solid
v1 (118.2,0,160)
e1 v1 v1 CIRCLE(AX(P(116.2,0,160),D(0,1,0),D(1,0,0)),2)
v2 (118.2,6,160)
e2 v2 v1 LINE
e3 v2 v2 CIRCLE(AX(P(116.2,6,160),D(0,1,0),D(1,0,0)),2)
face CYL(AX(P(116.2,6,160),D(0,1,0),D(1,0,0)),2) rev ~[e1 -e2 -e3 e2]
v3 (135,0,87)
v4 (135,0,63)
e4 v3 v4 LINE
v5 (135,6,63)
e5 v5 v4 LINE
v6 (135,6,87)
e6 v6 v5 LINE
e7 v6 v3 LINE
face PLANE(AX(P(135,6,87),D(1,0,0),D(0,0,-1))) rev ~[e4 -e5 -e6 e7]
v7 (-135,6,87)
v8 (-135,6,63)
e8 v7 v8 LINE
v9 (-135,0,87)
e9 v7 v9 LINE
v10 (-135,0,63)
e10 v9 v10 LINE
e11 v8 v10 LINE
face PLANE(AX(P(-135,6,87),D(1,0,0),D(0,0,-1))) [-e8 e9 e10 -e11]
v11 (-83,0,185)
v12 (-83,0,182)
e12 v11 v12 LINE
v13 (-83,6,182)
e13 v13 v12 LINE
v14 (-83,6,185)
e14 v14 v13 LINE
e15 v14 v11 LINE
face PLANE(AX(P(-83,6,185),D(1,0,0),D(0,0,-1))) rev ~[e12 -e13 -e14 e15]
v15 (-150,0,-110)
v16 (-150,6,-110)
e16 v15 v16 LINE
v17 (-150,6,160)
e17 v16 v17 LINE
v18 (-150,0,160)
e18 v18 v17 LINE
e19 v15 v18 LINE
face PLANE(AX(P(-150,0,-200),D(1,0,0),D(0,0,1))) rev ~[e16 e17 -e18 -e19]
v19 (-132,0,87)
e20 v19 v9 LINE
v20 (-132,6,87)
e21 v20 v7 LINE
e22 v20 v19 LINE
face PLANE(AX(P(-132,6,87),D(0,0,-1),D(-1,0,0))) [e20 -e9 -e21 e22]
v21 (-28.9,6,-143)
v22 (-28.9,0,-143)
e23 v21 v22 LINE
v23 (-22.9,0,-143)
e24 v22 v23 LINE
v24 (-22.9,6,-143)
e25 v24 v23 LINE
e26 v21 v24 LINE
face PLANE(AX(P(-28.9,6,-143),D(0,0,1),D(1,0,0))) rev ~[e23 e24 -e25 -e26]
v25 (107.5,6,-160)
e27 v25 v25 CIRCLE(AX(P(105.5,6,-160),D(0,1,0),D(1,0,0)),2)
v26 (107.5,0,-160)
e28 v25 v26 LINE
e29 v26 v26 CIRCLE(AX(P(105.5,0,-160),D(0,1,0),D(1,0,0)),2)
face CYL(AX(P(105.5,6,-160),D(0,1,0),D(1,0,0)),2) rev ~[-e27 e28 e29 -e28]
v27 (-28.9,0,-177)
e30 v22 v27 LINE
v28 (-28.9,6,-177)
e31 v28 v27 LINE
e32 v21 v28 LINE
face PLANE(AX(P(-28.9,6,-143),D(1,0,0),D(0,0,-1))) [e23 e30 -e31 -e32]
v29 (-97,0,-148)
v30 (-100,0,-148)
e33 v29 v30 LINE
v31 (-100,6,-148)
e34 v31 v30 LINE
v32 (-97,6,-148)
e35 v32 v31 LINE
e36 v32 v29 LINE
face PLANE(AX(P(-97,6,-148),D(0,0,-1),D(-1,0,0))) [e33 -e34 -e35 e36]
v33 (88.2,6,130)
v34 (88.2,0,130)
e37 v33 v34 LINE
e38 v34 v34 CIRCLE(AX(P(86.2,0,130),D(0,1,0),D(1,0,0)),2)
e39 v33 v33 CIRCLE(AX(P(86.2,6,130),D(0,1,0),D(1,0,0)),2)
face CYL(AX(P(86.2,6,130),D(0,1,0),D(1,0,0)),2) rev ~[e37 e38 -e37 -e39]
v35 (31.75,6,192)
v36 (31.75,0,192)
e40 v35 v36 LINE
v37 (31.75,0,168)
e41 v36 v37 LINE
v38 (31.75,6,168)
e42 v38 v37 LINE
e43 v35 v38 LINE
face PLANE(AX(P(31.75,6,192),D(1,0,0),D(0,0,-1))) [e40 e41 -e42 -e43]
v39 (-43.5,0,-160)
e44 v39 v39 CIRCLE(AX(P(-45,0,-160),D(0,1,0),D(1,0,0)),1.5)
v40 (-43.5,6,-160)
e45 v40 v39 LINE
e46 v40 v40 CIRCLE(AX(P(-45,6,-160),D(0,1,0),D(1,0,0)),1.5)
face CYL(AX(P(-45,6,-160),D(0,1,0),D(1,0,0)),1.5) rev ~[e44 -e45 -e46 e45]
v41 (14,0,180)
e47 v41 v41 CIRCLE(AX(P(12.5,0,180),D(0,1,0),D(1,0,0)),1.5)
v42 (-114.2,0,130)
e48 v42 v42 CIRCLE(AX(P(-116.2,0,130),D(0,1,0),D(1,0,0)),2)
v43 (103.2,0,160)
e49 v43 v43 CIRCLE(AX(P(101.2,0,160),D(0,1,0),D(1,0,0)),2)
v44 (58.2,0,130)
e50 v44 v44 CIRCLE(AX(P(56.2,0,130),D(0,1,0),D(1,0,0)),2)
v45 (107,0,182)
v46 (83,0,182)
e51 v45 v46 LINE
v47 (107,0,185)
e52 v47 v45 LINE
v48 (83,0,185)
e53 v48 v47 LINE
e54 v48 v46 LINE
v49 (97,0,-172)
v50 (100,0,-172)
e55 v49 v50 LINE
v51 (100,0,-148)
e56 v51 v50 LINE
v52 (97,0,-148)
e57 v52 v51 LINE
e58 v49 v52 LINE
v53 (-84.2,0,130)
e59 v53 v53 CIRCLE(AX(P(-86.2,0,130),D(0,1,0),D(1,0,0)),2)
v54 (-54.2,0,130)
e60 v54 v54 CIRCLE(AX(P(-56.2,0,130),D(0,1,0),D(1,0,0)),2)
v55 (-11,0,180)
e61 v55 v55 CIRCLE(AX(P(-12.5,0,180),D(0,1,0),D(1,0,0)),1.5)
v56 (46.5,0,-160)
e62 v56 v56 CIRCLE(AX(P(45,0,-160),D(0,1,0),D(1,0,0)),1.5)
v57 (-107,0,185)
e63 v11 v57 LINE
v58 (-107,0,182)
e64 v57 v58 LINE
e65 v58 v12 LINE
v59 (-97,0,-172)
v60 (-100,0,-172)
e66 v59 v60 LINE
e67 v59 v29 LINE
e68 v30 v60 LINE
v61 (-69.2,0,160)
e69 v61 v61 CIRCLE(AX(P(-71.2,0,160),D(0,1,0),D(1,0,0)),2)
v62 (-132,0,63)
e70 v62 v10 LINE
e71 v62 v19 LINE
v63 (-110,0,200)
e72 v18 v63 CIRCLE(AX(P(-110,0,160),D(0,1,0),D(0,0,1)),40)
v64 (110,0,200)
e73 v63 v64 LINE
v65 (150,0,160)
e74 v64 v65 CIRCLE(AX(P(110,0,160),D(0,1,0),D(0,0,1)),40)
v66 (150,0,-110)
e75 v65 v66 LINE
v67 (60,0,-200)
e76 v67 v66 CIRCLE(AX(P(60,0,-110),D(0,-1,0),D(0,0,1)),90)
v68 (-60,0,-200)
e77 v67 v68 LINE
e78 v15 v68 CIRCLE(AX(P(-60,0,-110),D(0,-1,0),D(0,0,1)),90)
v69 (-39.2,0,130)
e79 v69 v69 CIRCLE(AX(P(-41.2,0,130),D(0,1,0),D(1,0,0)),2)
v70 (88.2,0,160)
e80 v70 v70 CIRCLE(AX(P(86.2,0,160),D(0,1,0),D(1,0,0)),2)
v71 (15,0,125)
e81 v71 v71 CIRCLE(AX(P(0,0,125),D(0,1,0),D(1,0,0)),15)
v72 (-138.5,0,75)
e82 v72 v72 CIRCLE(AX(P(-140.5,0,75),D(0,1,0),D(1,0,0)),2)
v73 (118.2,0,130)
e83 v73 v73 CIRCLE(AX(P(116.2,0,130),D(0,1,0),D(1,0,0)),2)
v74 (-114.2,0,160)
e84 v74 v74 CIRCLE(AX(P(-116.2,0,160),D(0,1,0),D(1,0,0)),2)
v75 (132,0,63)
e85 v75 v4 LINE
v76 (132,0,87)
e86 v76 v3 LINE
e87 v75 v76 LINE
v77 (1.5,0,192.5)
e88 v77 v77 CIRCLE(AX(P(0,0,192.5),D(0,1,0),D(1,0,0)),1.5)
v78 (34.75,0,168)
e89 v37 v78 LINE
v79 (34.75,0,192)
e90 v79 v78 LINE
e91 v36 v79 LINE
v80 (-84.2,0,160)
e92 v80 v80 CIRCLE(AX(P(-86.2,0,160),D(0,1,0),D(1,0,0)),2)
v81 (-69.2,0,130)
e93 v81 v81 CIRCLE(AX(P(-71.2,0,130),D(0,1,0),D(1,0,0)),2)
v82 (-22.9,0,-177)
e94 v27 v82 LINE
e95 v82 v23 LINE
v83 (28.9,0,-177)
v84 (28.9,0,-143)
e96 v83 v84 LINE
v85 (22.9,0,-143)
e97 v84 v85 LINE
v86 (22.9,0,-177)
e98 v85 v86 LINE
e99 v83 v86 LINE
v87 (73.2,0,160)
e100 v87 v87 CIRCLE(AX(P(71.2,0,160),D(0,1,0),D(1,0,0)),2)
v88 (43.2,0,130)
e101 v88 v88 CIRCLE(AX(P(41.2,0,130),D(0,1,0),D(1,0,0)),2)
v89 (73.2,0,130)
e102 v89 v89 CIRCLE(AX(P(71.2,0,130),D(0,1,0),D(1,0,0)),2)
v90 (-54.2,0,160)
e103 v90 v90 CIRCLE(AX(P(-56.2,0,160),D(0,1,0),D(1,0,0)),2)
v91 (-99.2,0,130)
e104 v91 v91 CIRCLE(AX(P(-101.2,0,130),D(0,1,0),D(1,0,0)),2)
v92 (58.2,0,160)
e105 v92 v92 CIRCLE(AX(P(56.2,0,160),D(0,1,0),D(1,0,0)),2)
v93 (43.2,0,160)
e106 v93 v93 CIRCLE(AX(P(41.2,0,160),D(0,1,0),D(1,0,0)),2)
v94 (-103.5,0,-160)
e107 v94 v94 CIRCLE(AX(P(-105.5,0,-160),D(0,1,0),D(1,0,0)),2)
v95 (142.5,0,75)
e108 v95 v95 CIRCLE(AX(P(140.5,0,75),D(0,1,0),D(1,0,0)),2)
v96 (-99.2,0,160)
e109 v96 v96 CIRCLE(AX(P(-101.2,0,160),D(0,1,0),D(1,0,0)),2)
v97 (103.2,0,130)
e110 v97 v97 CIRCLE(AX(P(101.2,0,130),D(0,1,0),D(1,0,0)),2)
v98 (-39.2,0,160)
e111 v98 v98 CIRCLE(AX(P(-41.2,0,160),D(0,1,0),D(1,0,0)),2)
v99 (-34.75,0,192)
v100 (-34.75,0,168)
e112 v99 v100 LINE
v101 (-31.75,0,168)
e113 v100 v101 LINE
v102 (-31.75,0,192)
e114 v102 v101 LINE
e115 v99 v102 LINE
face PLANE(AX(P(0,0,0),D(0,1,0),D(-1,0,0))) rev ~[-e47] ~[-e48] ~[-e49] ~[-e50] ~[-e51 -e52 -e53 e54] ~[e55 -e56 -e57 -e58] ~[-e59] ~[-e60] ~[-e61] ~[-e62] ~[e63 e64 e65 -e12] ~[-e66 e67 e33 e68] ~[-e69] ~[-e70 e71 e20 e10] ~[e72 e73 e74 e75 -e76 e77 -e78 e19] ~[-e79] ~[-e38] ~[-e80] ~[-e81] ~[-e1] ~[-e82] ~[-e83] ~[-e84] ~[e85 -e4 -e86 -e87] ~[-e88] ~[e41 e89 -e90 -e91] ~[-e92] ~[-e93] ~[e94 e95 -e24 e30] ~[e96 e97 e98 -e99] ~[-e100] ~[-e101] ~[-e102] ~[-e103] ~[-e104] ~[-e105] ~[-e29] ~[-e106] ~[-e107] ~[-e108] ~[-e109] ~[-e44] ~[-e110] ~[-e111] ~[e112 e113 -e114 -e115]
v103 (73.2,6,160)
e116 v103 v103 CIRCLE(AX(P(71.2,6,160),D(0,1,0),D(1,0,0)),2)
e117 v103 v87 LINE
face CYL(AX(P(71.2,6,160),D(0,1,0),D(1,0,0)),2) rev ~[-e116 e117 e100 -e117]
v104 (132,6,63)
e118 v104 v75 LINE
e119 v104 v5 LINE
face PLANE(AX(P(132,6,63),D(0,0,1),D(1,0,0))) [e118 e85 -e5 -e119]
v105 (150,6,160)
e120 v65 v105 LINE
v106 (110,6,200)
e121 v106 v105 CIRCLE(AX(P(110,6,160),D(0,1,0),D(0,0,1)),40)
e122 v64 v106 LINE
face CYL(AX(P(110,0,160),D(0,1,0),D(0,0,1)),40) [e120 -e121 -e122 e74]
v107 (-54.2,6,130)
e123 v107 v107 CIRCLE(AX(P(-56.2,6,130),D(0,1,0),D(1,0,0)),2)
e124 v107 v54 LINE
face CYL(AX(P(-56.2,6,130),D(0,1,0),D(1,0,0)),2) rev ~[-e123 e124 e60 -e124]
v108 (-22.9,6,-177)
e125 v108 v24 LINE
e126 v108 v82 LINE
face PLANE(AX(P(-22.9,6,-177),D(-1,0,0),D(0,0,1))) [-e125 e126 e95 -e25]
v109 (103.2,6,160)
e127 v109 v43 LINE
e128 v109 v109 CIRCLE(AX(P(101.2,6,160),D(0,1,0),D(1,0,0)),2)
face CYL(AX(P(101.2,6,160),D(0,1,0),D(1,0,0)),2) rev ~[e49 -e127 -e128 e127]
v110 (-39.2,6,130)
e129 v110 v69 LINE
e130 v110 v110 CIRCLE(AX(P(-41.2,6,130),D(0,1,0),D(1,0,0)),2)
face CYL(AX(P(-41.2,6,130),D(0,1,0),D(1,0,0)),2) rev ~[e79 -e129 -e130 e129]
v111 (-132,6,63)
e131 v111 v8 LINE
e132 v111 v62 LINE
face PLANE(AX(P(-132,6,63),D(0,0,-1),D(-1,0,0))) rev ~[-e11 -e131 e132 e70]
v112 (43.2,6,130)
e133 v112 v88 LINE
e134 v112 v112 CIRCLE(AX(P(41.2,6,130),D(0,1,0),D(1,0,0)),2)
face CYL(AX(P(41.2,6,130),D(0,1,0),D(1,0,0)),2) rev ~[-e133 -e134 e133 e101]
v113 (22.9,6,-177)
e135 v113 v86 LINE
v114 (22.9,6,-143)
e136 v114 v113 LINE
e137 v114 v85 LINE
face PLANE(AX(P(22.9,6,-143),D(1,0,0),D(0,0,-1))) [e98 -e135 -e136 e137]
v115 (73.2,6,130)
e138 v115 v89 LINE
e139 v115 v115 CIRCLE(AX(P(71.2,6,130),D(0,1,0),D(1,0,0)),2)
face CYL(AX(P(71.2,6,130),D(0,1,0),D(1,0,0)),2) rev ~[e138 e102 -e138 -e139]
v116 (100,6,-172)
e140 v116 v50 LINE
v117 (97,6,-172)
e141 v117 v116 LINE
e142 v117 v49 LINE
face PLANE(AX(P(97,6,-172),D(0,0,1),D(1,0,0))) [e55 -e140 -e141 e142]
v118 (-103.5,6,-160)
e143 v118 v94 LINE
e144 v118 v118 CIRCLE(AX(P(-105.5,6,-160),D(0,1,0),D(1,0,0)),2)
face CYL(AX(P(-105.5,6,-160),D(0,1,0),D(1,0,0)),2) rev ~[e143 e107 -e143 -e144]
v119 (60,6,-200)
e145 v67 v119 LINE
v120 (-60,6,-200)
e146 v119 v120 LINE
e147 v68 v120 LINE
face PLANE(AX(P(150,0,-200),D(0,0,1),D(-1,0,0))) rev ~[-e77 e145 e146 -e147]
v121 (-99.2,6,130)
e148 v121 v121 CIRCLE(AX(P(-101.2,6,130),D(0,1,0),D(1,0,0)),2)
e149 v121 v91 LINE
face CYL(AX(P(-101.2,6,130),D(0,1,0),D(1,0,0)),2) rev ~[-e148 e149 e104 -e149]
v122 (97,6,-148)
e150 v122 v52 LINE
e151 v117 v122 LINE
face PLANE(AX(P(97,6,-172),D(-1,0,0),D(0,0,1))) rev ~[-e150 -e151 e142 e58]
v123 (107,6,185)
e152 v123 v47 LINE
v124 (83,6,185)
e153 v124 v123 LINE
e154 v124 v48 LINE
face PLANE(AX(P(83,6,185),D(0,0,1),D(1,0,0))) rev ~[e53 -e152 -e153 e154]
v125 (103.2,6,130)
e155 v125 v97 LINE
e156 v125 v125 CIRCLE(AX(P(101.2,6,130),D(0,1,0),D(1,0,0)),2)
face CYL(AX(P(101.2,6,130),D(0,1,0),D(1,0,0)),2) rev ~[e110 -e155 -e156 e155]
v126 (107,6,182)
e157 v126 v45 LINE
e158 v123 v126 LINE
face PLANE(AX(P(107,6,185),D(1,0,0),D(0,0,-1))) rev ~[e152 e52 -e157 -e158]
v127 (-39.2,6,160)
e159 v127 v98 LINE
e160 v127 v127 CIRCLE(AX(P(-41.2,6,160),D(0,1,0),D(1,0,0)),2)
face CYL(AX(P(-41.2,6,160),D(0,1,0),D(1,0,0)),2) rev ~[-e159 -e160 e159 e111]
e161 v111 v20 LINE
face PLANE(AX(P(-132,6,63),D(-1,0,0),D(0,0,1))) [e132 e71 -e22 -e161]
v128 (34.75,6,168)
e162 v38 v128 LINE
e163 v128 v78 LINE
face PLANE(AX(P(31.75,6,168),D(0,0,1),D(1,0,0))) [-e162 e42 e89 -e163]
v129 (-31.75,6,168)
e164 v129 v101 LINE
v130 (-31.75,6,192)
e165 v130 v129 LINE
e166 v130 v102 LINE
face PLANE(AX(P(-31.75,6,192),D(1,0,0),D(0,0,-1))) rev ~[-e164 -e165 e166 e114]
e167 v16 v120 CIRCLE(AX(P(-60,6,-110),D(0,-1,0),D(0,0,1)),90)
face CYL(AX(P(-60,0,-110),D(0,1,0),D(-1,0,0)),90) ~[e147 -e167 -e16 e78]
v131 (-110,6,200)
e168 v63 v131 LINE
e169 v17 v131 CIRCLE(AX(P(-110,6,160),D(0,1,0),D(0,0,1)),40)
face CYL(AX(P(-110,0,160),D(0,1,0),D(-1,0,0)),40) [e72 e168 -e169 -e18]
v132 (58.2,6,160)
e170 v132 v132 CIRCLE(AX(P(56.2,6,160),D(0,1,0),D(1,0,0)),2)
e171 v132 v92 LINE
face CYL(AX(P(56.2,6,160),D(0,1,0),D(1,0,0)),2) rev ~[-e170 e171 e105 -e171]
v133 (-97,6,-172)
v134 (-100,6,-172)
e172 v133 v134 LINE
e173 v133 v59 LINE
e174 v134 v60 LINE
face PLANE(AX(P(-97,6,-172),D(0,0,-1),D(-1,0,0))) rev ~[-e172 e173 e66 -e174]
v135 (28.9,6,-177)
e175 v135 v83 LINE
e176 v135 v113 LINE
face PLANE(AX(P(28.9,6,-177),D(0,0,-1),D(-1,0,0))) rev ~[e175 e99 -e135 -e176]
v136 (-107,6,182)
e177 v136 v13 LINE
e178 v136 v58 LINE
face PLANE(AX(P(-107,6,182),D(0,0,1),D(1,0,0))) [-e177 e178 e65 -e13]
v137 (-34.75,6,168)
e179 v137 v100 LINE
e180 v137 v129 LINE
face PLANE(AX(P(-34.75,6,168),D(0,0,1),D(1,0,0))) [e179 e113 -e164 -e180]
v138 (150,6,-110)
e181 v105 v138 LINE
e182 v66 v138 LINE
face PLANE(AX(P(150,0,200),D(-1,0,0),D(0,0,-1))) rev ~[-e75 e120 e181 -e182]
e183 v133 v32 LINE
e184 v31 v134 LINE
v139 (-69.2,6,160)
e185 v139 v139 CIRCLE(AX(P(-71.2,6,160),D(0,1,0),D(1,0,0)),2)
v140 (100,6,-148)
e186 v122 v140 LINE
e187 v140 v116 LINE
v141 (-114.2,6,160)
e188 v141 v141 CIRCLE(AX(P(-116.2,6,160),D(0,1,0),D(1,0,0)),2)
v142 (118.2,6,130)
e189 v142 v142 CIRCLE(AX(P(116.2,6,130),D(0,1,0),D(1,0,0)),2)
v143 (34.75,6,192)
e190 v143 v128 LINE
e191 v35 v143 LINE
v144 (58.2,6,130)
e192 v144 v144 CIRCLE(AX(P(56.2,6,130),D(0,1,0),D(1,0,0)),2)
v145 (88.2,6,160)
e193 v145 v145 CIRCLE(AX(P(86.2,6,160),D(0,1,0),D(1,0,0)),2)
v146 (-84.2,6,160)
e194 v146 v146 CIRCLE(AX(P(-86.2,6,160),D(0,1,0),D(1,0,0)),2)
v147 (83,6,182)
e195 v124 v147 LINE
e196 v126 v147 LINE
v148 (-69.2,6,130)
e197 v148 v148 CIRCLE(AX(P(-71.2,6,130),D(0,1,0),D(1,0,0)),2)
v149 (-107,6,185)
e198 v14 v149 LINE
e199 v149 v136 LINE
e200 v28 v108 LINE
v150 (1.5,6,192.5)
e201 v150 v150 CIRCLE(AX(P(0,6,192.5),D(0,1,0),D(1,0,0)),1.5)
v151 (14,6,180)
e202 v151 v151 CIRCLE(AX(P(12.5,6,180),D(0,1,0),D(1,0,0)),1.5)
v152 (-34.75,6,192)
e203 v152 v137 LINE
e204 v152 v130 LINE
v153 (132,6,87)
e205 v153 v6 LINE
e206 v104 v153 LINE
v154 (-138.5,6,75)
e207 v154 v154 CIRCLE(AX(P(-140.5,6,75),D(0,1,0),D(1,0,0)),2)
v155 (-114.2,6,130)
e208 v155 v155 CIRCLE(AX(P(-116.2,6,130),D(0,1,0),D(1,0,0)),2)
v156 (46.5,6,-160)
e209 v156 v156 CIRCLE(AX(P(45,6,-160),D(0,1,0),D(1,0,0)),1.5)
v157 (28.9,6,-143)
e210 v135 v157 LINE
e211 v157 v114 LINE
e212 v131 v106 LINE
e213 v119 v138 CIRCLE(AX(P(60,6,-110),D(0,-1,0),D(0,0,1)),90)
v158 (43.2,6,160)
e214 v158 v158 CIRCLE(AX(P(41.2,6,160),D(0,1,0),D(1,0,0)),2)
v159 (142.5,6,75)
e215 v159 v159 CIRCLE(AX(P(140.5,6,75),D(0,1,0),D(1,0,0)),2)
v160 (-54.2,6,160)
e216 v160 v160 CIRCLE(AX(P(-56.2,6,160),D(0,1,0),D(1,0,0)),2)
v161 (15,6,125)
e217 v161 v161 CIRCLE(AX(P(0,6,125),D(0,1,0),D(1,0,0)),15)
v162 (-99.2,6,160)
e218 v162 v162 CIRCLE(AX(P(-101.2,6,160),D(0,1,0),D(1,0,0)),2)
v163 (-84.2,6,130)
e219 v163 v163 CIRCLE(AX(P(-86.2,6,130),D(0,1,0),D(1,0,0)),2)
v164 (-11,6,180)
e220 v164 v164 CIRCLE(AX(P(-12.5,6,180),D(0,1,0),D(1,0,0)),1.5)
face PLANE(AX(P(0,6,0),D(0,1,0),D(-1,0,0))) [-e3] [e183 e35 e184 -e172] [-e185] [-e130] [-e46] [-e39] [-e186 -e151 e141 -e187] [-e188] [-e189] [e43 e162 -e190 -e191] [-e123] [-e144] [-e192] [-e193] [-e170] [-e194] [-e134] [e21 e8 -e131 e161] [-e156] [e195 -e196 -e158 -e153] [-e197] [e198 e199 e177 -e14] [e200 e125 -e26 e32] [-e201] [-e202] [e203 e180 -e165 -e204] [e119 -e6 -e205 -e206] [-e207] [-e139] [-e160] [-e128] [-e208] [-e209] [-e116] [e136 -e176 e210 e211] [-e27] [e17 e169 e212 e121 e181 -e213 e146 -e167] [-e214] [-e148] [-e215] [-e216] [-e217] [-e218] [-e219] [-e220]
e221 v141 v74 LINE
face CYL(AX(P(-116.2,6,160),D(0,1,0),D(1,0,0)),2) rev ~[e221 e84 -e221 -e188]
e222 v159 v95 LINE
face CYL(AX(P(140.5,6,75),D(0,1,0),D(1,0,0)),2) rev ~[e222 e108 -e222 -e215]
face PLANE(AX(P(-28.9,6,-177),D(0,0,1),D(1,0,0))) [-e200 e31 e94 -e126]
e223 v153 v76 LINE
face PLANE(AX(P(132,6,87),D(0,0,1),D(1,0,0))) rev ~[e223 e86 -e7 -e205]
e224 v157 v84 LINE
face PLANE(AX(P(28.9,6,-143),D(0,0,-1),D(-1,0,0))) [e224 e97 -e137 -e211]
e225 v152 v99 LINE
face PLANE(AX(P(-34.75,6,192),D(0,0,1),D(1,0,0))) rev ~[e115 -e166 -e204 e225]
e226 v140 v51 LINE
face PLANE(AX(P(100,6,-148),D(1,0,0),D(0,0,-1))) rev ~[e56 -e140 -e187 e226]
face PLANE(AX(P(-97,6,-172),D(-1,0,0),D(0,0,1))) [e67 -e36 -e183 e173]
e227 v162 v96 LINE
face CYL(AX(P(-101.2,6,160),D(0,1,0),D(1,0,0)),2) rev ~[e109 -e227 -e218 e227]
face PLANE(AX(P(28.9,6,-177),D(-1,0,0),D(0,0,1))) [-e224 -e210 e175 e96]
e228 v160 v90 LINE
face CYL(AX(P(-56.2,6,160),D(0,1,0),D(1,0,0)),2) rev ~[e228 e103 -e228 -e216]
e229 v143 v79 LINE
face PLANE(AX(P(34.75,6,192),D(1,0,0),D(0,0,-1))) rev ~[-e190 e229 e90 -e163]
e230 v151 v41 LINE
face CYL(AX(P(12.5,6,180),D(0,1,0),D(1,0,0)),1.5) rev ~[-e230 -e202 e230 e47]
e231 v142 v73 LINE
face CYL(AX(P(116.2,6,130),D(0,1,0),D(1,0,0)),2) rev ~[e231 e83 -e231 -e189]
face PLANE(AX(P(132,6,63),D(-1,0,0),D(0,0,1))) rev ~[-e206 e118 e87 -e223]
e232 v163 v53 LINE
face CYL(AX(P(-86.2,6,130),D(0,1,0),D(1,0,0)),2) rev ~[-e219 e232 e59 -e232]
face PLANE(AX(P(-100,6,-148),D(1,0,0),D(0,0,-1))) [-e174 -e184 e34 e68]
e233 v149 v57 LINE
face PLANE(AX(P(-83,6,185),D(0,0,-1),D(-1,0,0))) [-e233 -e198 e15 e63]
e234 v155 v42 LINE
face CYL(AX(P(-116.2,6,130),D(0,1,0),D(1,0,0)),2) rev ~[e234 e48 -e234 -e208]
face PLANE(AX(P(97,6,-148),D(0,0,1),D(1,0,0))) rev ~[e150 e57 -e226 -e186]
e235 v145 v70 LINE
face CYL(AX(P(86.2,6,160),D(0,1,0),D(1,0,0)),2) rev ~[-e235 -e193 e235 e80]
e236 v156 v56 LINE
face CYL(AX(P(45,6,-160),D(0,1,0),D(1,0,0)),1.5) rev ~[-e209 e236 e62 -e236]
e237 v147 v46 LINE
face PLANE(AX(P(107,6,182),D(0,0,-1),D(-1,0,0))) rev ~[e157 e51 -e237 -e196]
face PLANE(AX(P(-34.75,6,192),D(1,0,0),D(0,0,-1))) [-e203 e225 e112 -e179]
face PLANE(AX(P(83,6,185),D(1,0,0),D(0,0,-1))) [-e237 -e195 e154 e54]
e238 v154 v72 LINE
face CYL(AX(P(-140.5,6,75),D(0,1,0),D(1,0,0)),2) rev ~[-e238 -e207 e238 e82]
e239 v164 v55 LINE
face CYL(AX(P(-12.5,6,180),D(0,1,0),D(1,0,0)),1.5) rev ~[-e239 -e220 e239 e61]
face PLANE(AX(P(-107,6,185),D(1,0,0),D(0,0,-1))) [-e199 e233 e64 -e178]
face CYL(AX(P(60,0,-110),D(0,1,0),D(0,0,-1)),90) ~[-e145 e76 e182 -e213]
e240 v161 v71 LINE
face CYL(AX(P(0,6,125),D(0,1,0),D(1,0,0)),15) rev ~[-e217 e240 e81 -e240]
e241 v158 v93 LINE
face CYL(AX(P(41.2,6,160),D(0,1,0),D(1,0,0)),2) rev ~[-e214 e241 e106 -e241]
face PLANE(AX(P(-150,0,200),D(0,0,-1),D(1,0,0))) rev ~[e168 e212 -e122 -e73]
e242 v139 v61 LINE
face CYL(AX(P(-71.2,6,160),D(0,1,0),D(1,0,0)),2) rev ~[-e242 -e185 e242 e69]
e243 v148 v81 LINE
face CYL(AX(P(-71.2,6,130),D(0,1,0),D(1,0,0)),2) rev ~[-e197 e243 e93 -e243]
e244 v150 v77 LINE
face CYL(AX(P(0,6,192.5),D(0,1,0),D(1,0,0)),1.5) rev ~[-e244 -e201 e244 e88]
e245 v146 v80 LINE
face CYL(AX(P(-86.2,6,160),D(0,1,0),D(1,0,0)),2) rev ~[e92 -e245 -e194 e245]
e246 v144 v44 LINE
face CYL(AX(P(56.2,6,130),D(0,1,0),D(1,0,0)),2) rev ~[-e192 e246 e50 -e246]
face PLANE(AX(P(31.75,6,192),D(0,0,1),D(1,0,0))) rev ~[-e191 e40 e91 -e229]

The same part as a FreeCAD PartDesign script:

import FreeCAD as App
import Part
import Sketcher

V = App.Vector
Q = App.Units.Quantity


def edges_at(feature, points):
    """Names of the edges that pass closest to the given points."""
    edges = feature.Shape.Edges
    near = lambda p: min(range(len(edges)), key=lambda i: edges[i].distToShape(Part.Vertex(*p))[0])
    return sorted({f"Edge{near(p) + 1}" for p in points})

doc = App.newDocument("Part")
body = doc.addObject("PartDesign::Body", "Body")

# Sketch on XZ plane
sketch1 = body.newObject("Sketcher::SketchObject", "Sketch")
sketch1.AttachmentSupport = (doc.getObject("XZ_Plane"), [""])
sketch1.MapMode = "FlatFace"
sketch1.addGeometry([
    Part.LineSegment(V(-150, -200, 0), V(-150, 200, 0)),
    Part.LineSegment(V(-150, 200, 0), V(150, 200, 0)),
    Part.LineSegment(V(150, 200, 0), V(150, -200, 0)),
    Part.LineSegment(V(150, -200, 0), V(-150, -200, 0)),
], False)
sketch1.addConstraint([
    Sketcher.Constraint("Coincident", 0, 2, 1, 1),
    Sketcher.Constraint("Coincident", 1, 2, 2, 1),
    Sketcher.Constraint("Coincident", 2, 2, 3, 1),
    Sketcher.Constraint("Coincident", 3, 2, 0, 1),
    Sketcher.Constraint("Vertical", 0),
    Sketcher.Constraint("Horizontal", 1),
    Sketcher.Constraint("Vertical", 2),
    Sketcher.Constraint("Horizontal", 3),
    Sketcher.Constraint("Symmetric", 0, 2, 2, 2, -1, 1),
    Sketcher.Constraint("DistanceX", 1, 1, 1, 2, Q("300 mm")),
    Sketcher.Constraint("DistanceY", 0, 1, 0, 2, Q("400 mm")),
])
pad1 = body.newObject("PartDesign::Pad", "Pad")
pad1.Profile = sketch1
pad1.Length = 6
pad1.Reversed = True

# Sketch on XZ plane
sketch2 = body.newObject("Sketcher::SketchObject", "Sketch001")
sketch2.AttachmentSupport = (doc.getObject("XZ_Plane"), [""])
sketch2.MapMode = "FlatFace"
sketch2.AttachmentOffset = App.Placement(V(0, 0, -6), App.Rotation())
sketch2.addGeometry([
    Part.Circle(V(-116.2, 160, 0), V(0, 0, 1), 2),  # 0
    Part.Circle(V(-116.2, 130, 0), V(0, 0, 1), 2),  # 1
    Part.Circle(V(-86.2, 130, 0), V(0, 0, 1), 2),  # 2
    Part.Circle(V(-101.2, 130, 0), V(0, 0, 1), 2),  # 3
    Part.Circle(V(-101.2, 160, 0), V(0, 0, 1), 2),  # 4
    Part.Circle(V(-86.2, 160, 0), V(0, 0, 1), 2),  # 5
    Part.Circle(V(86.2, 160, 0), V(0, 0, 1), 2),  # 6
    Part.Circle(V(116.2, 160, 0), V(0, 0, 1), 2),  # 7
    Part.Circle(V(101.2, 160, 0), V(0, 0, 1), 2),  # 8
    Part.Circle(V(101.2, 130, 0), V(0, 0, 1), 2),  # 9
    Part.Circle(V(86.2, 130, 0), V(0, 0, 1), 2),  # 10
    Part.Circle(V(116.2, 130, 0), V(0, 0, 1), 2),  # 11
    Part.Circle(V(-71.2, 160, 0), V(0, 0, 1), 2),  # 12
    Part.Circle(V(-71.2, 130, 0), V(0, 0, 1), 2),  # 13
    Part.Circle(V(-56.2, 160, 0), V(0, 0, 1), 2),  # 14
    Part.Circle(V(-56.2, 130, 0), V(0, 0, 1), 2),  # 15
    Part.Circle(V(-41.2, 160, 0), V(0, 0, 1), 2),  # 16
    Part.Circle(V(-41.2, 130, 0), V(0, 0, 1), 2),  # 17
    Part.Circle(V(71.2, 130, 0), V(0, 0, 1), 2),  # 18
    Part.Circle(V(71.2, 160, 0), V(0, 0, 1), 2),  # 19
    Part.Circle(V(56.2, 130, 0), V(0, 0, 1), 2),  # 20
    Part.Circle(V(56.2, 160, 0), V(0, 0, 1), 2),  # 21
    Part.Circle(V(41.2, 130, 0), V(0, 0, 1), 2),  # 22
    Part.Circle(V(41.2, 160, 0), V(0, 0, 1), 2),  # 23
], False)
sketch2.addConstraint([
    Sketcher.Constraint("Equal", 0, 1),
    Sketcher.Constraint("Equal", 1, 2),
    Sketcher.Constraint("Equal", 2, 3),
    Sketcher.Constraint("Equal", 3, 4),
    Sketcher.Constraint("Equal", 4, 5),
    Sketcher.Constraint("Equal", 5, 6),
    Sketcher.Constraint("Equal", 6, 7),
    Sketcher.Constraint("Equal", 7, 8),
    Sketcher.Constraint("Equal", 8, 9),
    Sketcher.Constraint("Equal", 9, 10),
    Sketcher.Constraint("Equal", 10, 11),
    Sketcher.Constraint("Equal", 11, 12),
    Sketcher.Constraint("Equal", 12, 13),
    Sketcher.Constraint("Equal", 13, 14),
    Sketcher.Constraint("Equal", 14, 15),
    Sketcher.Constraint("Equal", 15, 16),
    Sketcher.Constraint("Equal", 16, 17),
    Sketcher.Constraint("Equal", 17, 18),
    Sketcher.Constraint("Equal", 18, 19),
    Sketcher.Constraint("Equal", 19, 20),
    Sketcher.Constraint("Equal", 20, 21),
    Sketcher.Constraint("Equal", 21, 22),
    Sketcher.Constraint("Equal", 22, 23),
    Sketcher.Constraint("Symmetric", 5, 3, 6, 3, -2),
    Sketcher.Constraint("Symmetric", 0, 3, 7, 3, -2),
    Sketcher.Constraint("Symmetric", 4, 3, 8, 3, -2),
    Sketcher.Constraint("Symmetric", 3, 3, 9, 3, -2),
    Sketcher.Constraint("Symmetric", 2, 3, 10, 3, -2),
    Sketcher.Constraint("Symmetric", 1, 3, 11, 3, -2),
    Sketcher.Constraint("Symmetric", 13, 3, 18, 3, -2),
    Sketcher.Constraint("Symmetric", 12, 3, 19, 3, -2),
    Sketcher.Constraint("Symmetric", 15, 3, 20, 3, -2),
    Sketcher.Constraint("Symmetric", 14, 3, 21, 3, -2),
    Sketcher.Constraint("Symmetric", 17, 3, 22, 3, -2),
    Sketcher.Constraint("Symmetric", 16, 3, 23, 3, -2),
    Sketcher.Constraint("Horizontal", 1, 3, 2, 3),
    Sketcher.Constraint("Horizontal", 2, 3, 3, 3),
    Sketcher.Constraint("Horizontal", 0, 3, 4, 3),
    Sketcher.Constraint("Horizontal", 4, 3, 5, 3),
    Sketcher.Constraint("Horizontal", 8, 3, 12, 3),
    Sketcher.Constraint("Horizontal", 11, 3, 13, 3),
    Sketcher.Constraint("Horizontal", 12, 3, 14, 3),
    Sketcher.Constraint("Horizontal", 13, 3, 15, 3),
    Sketcher.Constraint("Horizontal", 14, 3, 16, 3),
    Sketcher.Constraint("Horizontal", 15, 3, 17, 3),
    Sketcher.Constraint("Vertical", 0, 3, 1, 3),
    Sketcher.Constraint("Vertical", 3, 3, 4, 3),
    Sketcher.Constraint("Vertical", 2, 3, 5, 3),
    Sketcher.Constraint("Vertical", 12, 3, 13, 3),
    Sketcher.Constraint("Vertical", 14, 3, 15, 3),
    Sketcher.Constraint("Vertical", 16, 3, 17, 3),
    Sketcher.Constraint("Diameter", 0, Q("4 mm")),
    Sketcher.Constraint("DistanceX", 1, 3, 3, 3, Q("15 mm")),
    Sketcher.Constraint("DistanceX", 3, 3, 2, 3, Q("15 mm")),
    Sketcher.Constraint("DistanceX", 5, 3, 12, 3, Q("15 mm")),
    Sketcher.Constraint("DistanceX", 12, 3, 14, 3, Q("15 mm")),
    Sketcher.Constraint("DistanceX", 14, 3, 16, 3, Q("15 mm")),
    Sketcher.Constraint("DistanceY", -1, 1, 0, 3, Q("160 mm")),
    Sketcher.Constraint("DistanceY", -1, 1, 1, 3, Q("130 mm")),
    Sketcher.Constraint("DistanceX", 0, 3, -1, 1, Q("116.2 mm")),
])
pocket1 = body.newObject("PartDesign::Pocket", "Pocket")
pocket1.Profile = sketch2
pocket1.Length = 10
pocket1.Reversed = True

# Sketch on XZ plane
sketch3 = body.newObject("Sketcher::SketchObject", "Sketch002")
sketch3.AttachmentSupport = (doc.getObject("XZ_Plane"), [""])
sketch3.MapMode = "FlatFace"
sketch3.AttachmentOffset = App.Placement(V(0, 0, -6), App.Rotation())
sketch3.addGeometry(Part.Circle(V(0, 125, 0), V(0, 0, 1), 15), False)
sketch3.addConstraint([
    Sketcher.Constraint("PointOnObject", 0, 3, -2),
    Sketcher.Constraint("Diameter", 0, Q("30 mm")),
    Sketcher.Constraint("DistanceY", -1, 1, 0, 3, Q("125 mm")),
])
pocket2 = body.newObject("PartDesign::Pocket", "Pocket001")
pocket2.Profile = sketch3
pocket2.Length = 10
pocket2.Reversed = True

# Sketch on XZ plane
sketch4 = body.newObject("Sketcher::SketchObject", "Sketch003")
sketch4.AttachmentSupport = (doc.getObject("XZ_Plane"), [""])
sketch4.MapMode = "FlatFace"
sketch4.AttachmentOffset = App.Placement(V(0, 0, -6), App.Rotation())
sketch4.addGeometry([
    Part.LineSegment(V(29, -143, 0), V(29, -177, 0)),  # 0
    Part.LineSegment(V(29, -177, 0), V(23, -177, 0)),  # 1
    Part.LineSegment(V(23, -177, 0), V(23, -143, 0)),  # 2
    Part.LineSegment(V(23, -143, 0), V(29, -143, 0)),  # 3
    Part.LineSegment(V(-23, -143, 0), V(-23, -177, 0)),  # 4
    Part.LineSegment(V(-23, -177, 0), V(-29, -177, 0)),  # 5
    Part.LineSegment(V(-29, -177, 0), V(-29, -143, 0)),  # 6
    Part.LineSegment(V(-29, -143, 0), V(-23, -143, 0)),  # 7
], False)
sketch4.addConstraint([
    Sketcher.Constraint("Coincident", 0, 2, 1, 1),
    Sketcher.Constraint("Coincident", 1, 2, 2, 1),
    Sketcher.Constraint("Coincident", 2, 2, 3, 1),
    Sketcher.Constraint("Coincident", 3, 2, 0, 1),
    Sketcher.Constraint("Coincident", 4, 2, 5, 1),
    Sketcher.Constraint("Coincident", 5, 2, 6, 1),
    Sketcher.Constraint("Coincident", 6, 2, 7, 1),
    Sketcher.Constraint("Coincident", 7, 2, 4, 1),
    Sketcher.Constraint("Vertical", 0),
    Sketcher.Constraint("Horizontal", 1),
    Sketcher.Constraint("Vertical", 2),
    Sketcher.Constraint("Horizontal", 3),
    Sketcher.Constraint("Vertical", 4),
    Sketcher.Constraint("Horizontal", 5),
    Sketcher.Constraint("Vertical", 6),
    Sketcher.Constraint("Horizontal", 7),
    Sketcher.Constraint("Symmetric", 1, 2, 4, 2, -2),
    Sketcher.Constraint("Symmetric", 3, 2, 6, 2, -2),
    Sketcher.Constraint("DistanceX", 1, 2, 1, 1, Q("6 mm")),
    Sketcher.Constraint("DistanceY", 0, 2, 0, 1, Q("34 mm")),
    Sketcher.Constraint("DistanceY", 0, 2, -1, 1, Q("177 mm")),
    Sketcher.Constraint("DistanceX", -1, 1, 0, 2, Q("28.9 mm")),
])
pocket3 = body.newObject("PartDesign::Pocket", "Pocket002")
pocket3.Profile = sketch4
pocket3.Length = 10
pocket3.Reversed = True

# Sketch on XZ plane
sketch5 = body.newObject("Sketcher::SketchObject", "Sketch004")
sketch5.AttachmentSupport = (doc.getObject("XZ_Plane"), [""])
sketch5.MapMode = "FlatFace"
sketch5.AttachmentOffset = App.Placement(V(0, 0, -6), App.Rotation())
sketch5.addGeometry([
    Part.Circle(V(45, -160, 0), V(0, 0, 1), 1.5),
    Part.Circle(V(-45, -160, 0), V(0, 0, 1), 1.5),
], False)
sketch5.addConstraint([
    Sketcher.Constraint("Equal", 0, 1),
    Sketcher.Constraint("Symmetric", 0, 3, 1, 3, -2),
    Sketcher.Constraint("Diameter", 0, Q("3 mm")),
    Sketcher.Constraint("DistanceX", -1, 1, 0, 3, Q("45 mm")),
    Sketcher.Constraint("DistanceY", 0, 3, -1, 1, Q("160 mm")),
])
pocket4 = body.newObject("PartDesign::Pocket", "Pocket003")
pocket4.Profile = sketch5
pocket4.Length = 10
pocket4.Reversed = True
doc.recompute()

fillet = body.newObject("PartDesign::Fillet", "Fillet")
fillet.Base = (pocket4, edges_at(pocket4, [(-150, 3, 200), (150, 3, 200)]))
fillet.Radius = 40
doc.recompute()

fillet2 = body.newObject("PartDesign::Fillet", "Fillet001")
fillet2.Base = (fillet, edges_at(fillet, [(150, 3, -200), (-150, 3, -200)]))
fillet2.Radius = 90

# Sketch on XZ plane
sketch6 = body.newObject("Sketcher::SketchObject", "Sketch005")
sketch6.AttachmentSupport = (doc.getObject("XZ_Plane"), [""])
sketch6.MapMode = "FlatFace"
sketch6.AttachmentOffset = App.Placement(V(0, 0, -6), App.Rotation())
sketch6.addGeometry([
    Part.LineSegment(V(-34.8, 168, 0), V(-34.8, 192, 0)),  # 0
    Part.LineSegment(V(-34.8, 192, 0), V(-31.8, 192, 0)),  # 1
    Part.LineSegment(V(-31.8, 192, 0), V(-31.8, 168, 0)),  # 2
    Part.LineSegment(V(-31.8, 168, 0), V(-34.8, 168, 0)),  # 3
    Part.LineSegment(V(31.8, 168, 0), V(31.8, 192, 0)),  # 4
    Part.LineSegment(V(31.8, 192, 0), V(34.8, 192, 0)),  # 5
    Part.LineSegment(V(34.8, 192, 0), V(34.8, 168, 0)),  # 6
    Part.LineSegment(V(34.8, 168, 0), V(31.8, 168, 0)),  # 7
], False)
sketch6.addConstraint([
    Sketcher.Constraint("Coincident", 0, 2, 1, 1),
    Sketcher.Constraint("Coincident", 1, 2, 2, 1),
    Sketcher.Constraint("Coincident", 2, 2, 3, 1),
    Sketcher.Constraint("Coincident", 3, 2, 0, 1),
    Sketcher.Constraint("Coincident", 4, 2, 5, 1),
    Sketcher.Constraint("Coincident", 5, 2, 6, 1),
    Sketcher.Constraint("Coincident", 6, 2, 7, 1),
    Sketcher.Constraint("Coincident", 7, 2, 4, 1),
    Sketcher.Constraint("Vertical", 0),
    Sketcher.Constraint("Horizontal", 1),
    Sketcher.Constraint("Vertical", 2),
    Sketcher.Constraint("Horizontal", 3),
    Sketcher.Constraint("Vertical", 4),
    Sketcher.Constraint("Horizontal", 5),
    Sketcher.Constraint("Vertical", 6),
    Sketcher.Constraint("Horizontal", 7),
    Sketcher.Constraint("Symmetric", 1, 2, 4, 2, -2),
    Sketcher.Constraint("Symmetric", 3, 2, 6, 2, -2),
    Sketcher.Constraint("DistanceX", 1, 1, 1, 2, Q("3 mm")),
    Sketcher.Constraint("DistanceY", 0, 1, 0, 2, Q("24 mm")),
    Sketcher.Constraint("DistanceY", -1, 1, 0, 2, Q("192 mm")),
    Sketcher.Constraint("DistanceX", 1, 2, 4, 2, Q("63.5 mm")),
])
pocket5 = body.newObject("PartDesign::Pocket", "Pocket004")
pocket5.Profile = sketch6
pocket5.Length = 10
pocket5.Reversed = True

# Sketch on XZ plane
sketch7 = body.newObject("Sketcher::SketchObject", "Sketch006")
sketch7.AttachmentSupport = (doc.getObject("XZ_Plane"), [""])
sketch7.MapMode = "FlatFace"
sketch7.AttachmentOffset = App.Placement(V(0, 0, -6), App.Rotation())
sketch7.addGeometry([
    Part.Circle(V(12.5, 180, 0), V(0, 0, 1), 1.5),
    Part.Circle(V(0, 192.5, 0), V(0, 0, 1), 1.5),
    Part.Circle(V(-12.5, 180, 0), V(0, 0, 1), 1.5),
], False)
sketch7.addConstraint([
    Sketcher.Constraint("Equal", 0, 1),
    Sketcher.Constraint("Equal", 1, 2),
    Sketcher.Constraint("Symmetric", 0, 3, 2, 3, -2),
    Sketcher.Constraint("PointOnObject", 1, 3, -2),
    Sketcher.Constraint("Diameter", 0, Q("3 mm")),
    Sketcher.Constraint("DistanceY", -1, 1, 0, 3, Q("180 mm")),
    Sketcher.Constraint("DistanceX", 2, 3, 0, 3, Q("25 mm")),
    Sketcher.Constraint("DistanceY", -1, 1, 1, 3, Q("192.5 mm")),
])
pocket6 = body.newObject("PartDesign::Pocket", "Pocket005")
pocket6.Profile = sketch7
pocket6.Length = 10
pocket6.Reversed = True

# Sketch on XZ plane
sketch8 = body.newObject("Sketcher::SketchObject", "Sketch007")
sketch8.AttachmentSupport = (doc.getObject("XZ_Plane"), [""])
sketch8.MapMode = "FlatFace"
sketch8.AttachmentOffset = App.Placement(V(0, 0, -6), App.Rotation())
sketch8.addGeometry([
    Part.LineSegment(V(83, 182, 0), V(83, 185, 0)),  # 0
    Part.LineSegment(V(83, 185, 0), V(107, 185, 0)),  # 1
    Part.LineSegment(V(107, 185, 0), V(107, 182, 0)),  # 2
    Part.LineSegment(V(107, 182, 0), V(83, 182, 0)),  # 3
    Part.LineSegment(V(135, 63, 0), V(132, 63, 0)),  # 4
    Part.LineSegment(V(132, 63, 0), V(132, 87, 0)),  # 5
    Part.LineSegment(V(132, 87, 0), V(135, 87, 0)),  # 6
    Part.LineSegment(V(135, 87, 0), V(135, 63, 0)),  # 7
    Part.LineSegment(V(100, -172, 0), V(97, -172, 0)),  # 8
    Part.LineSegment(V(97, -172, 0), V(97, -148, 0)),  # 9
    Part.LineSegment(V(97, -148, 0), V(100, -148, 0)),  # 10
    Part.LineSegment(V(100, -148, 0), V(100, -172, 0)),  # 11
    Part.LineSegment(V(-107, 185, 0), V(-83, 185, 0)),  # 12
    Part.LineSegment(V(-83, 185, 0), V(-83, 182, 0)),  # 13
    Part.LineSegment(V(-83, 182, 0), V(-107, 182, 0)),  # 14
    Part.LineSegment(V(-107, 182, 0), V(-107, 185, 0)),  # 15
    Part.LineSegment(V(-132, 87, 0), V(-132, 63, 0)),  # 16
    Part.LineSegment(V(-132, 63, 0), V(-135, 63, 0)),  # 17
    Part.LineSegment(V(-135, 63, 0), V(-135, 87, 0)),  # 18
    Part.LineSegment(V(-135, 87, 0), V(-132, 87, 0)),  # 19
    Part.LineSegment(V(-97, -148, 0), V(-97, -172, 0)),  # 20
    Part.LineSegment(V(-97, -172, 0), V(-100, -172, 0)),  # 21
    Part.LineSegment(V(-100, -172, 0), V(-100, -148, 0)),  # 22
    Part.LineSegment(V(-100, -148, 0), V(-97, -148, 0)),  # 23
], False)
sketch8.addConstraint([
    Sketcher.Constraint("Coincident", 0, 2, 1, 1),
    Sketcher.Constraint("Coincident", 1, 2, 2, 1),
    Sketcher.Constraint("Coincident", 2, 2, 3, 1),
    Sketcher.Constraint("Coincident", 3, 2, 0, 1),
    Sketcher.Constraint("Coincident", 4, 2, 5, 1),
    Sketcher.Constraint("Coincident", 5, 2, 6, 1),
    Sketcher.Constraint("Coincident", 6, 2, 7, 1),
    Sketcher.Constraint("Coincident", 7, 2, 4, 1),
    Sketcher.Constraint("Coincident", 8, 2, 9, 1),
    Sketcher.Constraint("Coincident", 9, 2, 10, 1),
    Sketcher.Constraint("Coincident", 10, 2, 11, 1),
    Sketcher.Constraint("Coincident", 11, 2, 8, 1),
    Sketcher.Constraint("Coincident", 12, 2, 13, 1),
    Sketcher.Constraint("Coincident", 13, 2, 14, 1),
    Sketcher.Constraint("Coincident", 14, 2, 15, 1),
    Sketcher.Constraint("Coincident", 15, 2, 12, 1),
    Sketcher.Constraint("Coincident", 16, 2, 17, 1),
    Sketcher.Constraint("Coincident", 17, 2, 18, 1),
    Sketcher.Constraint("Coincident", 18, 2, 19, 1),
    Sketcher.Constraint("Coincident", 19, 2, 16, 1),
    Sketcher.Constraint("Coincident", 20, 2, 21, 1),
    Sketcher.Constraint("Coincident", 21, 2, 22, 1),
    Sketcher.Constraint("Coincident", 22, 2, 23, 1),
    Sketcher.Constraint("Coincident", 23, 2, 20, 1),
    Sketcher.Constraint("Vertical", 0),
    Sketcher.Constraint("Horizontal", 1),
    Sketcher.Constraint("Vertical", 2),
    Sketcher.Constraint("Horizontal", 3),
    Sketcher.Constraint("Horizontal", 4),
    Sketcher.Constraint("Vertical", 5),
    Sketcher.Constraint("Horizontal", 6),
    Sketcher.Constraint("Vertical", 7),
    Sketcher.Constraint("Horizontal", 8),
    Sketcher.Constraint("Vertical", 9),
    Sketcher.Constraint("Horizontal", 10),
    Sketcher.Constraint("Vertical", 11),
    Sketcher.Constraint("Horizontal", 12),
    Sketcher.Constraint("Vertical", 13),
    Sketcher.Constraint("Horizontal", 14),
    Sketcher.Constraint("Vertical", 15),
    Sketcher.Constraint("Vertical", 16),
    Sketcher.Constraint("Horizontal", 17),
    Sketcher.Constraint("Vertical", 18),
    Sketcher.Constraint("Horizontal", 19),
    Sketcher.Constraint("Vertical", 20),
    Sketcher.Constraint("Horizontal", 21),
    Sketcher.Constraint("Vertical", 22),
    Sketcher.Constraint("Horizontal", 23),
    Sketcher.Constraint("Symmetric", 0, 2, 12, 2, -2),
    Sketcher.Constraint("Symmetric", 2, 2, 14, 2, -2),
    Sketcher.Constraint("Symmetric", 4, 2, 16, 2, -2),
    Sketcher.Constraint("Symmetric", 6, 2, 18, 2, -2),
    Sketcher.Constraint("Symmetric", 8, 2, 20, 2, -2),
    Sketcher.Constraint("Symmetric", 10, 2, 22, 2, -2),
    Sketcher.Constraint("Equal", 6, 8),
    Sketcher.Constraint("Equal", 23, 0),
    Sketcher.Constraint("Equal", 14, 5),
    Sketcher.Constraint("Equal", 7, 9),
    Sketcher.Constraint("DistanceX", 1, 1, 1, 2, Q("24 mm")),
    Sketcher.Constraint("DistanceX", 4, 2, 4, 1, Q("3 mm")),
    Sketcher.Constraint("DistanceX", -1, 1, 0, 2, Q("83 mm")),
    Sketcher.Constraint("DistanceY", -1, 1, 0, 2, Q("185 mm")),
    Sketcher.Constraint("DistanceX", -1, 1, 4, 2, Q("132 mm")),
    Sketcher.Constraint("DistanceY", -1, 1, 4, 2, Q("63 mm")),
    Sketcher.Constraint("DistanceX", -1, 1, 8, 2, Q("97 mm")),
    Sketcher.Constraint("DistanceY", 8, 2, -1, 1, Q("172 mm")),
])
pocket7 = body.newObject("PartDesign::Pocket", "Pocket006")
pocket7.Profile = sketch8
pocket7.Length = 10
pocket7.Reversed = True

# Sketch on XZ plane
sketch9 = body.newObject("Sketcher::SketchObject", "Sketch008")
sketch9.AttachmentSupport = (doc.getObject("XZ_Plane"), [""])
sketch9.MapMode = "FlatFace"
sketch9.AttachmentOffset = App.Placement(V(0, 0, -6), App.Rotation())
sketch9.addGeometry([
    Part.Circle(V(140.5, 75, 0), V(0, 0, 1), 2),
    Part.Circle(V(105.5, -160, 0), V(0, 0, 1), 2),
    Part.Circle(V(-140.5, 75, 0), V(0, 0, 1), 2),
    Part.Circle(V(-105.5, -160, 0), V(0, 0, 1), 2),
], False)
sketch9.addConstraint([
    Sketcher.Constraint("Equal", 0, 1),
    Sketcher.Constraint("Equal", 1, 2),
    Sketcher.Constraint("Equal", 2, 3),
    Sketcher.Constraint("Symmetric", 0, 3, 2, 3, -2),
    Sketcher.Constraint("Symmetric", 1, 3, 3, 3, -2),
    Sketcher.Constraint("Diameter", 0, Q("4 mm")),
    Sketcher.Constraint("DistanceY", -1, 1, 0, 3, Q("75 mm")),
    Sketcher.Constraint("DistanceY", 1, 3, -1, 1, Q("160 mm")),
    Sketcher.Constraint("DistanceX", 1, 3, 0, 3, Q("35 mm")),
    Sketcher.Constraint("DistanceX", 2, 3, 0, 3, Q("281 mm")),
])
pocket8 = body.newObject("PartDesign::Pocket", "Pocket007")
pocket8.Profile = sketch9
pocket8.Length = 10
pocket8.Reversed = True

doc.recompute()
